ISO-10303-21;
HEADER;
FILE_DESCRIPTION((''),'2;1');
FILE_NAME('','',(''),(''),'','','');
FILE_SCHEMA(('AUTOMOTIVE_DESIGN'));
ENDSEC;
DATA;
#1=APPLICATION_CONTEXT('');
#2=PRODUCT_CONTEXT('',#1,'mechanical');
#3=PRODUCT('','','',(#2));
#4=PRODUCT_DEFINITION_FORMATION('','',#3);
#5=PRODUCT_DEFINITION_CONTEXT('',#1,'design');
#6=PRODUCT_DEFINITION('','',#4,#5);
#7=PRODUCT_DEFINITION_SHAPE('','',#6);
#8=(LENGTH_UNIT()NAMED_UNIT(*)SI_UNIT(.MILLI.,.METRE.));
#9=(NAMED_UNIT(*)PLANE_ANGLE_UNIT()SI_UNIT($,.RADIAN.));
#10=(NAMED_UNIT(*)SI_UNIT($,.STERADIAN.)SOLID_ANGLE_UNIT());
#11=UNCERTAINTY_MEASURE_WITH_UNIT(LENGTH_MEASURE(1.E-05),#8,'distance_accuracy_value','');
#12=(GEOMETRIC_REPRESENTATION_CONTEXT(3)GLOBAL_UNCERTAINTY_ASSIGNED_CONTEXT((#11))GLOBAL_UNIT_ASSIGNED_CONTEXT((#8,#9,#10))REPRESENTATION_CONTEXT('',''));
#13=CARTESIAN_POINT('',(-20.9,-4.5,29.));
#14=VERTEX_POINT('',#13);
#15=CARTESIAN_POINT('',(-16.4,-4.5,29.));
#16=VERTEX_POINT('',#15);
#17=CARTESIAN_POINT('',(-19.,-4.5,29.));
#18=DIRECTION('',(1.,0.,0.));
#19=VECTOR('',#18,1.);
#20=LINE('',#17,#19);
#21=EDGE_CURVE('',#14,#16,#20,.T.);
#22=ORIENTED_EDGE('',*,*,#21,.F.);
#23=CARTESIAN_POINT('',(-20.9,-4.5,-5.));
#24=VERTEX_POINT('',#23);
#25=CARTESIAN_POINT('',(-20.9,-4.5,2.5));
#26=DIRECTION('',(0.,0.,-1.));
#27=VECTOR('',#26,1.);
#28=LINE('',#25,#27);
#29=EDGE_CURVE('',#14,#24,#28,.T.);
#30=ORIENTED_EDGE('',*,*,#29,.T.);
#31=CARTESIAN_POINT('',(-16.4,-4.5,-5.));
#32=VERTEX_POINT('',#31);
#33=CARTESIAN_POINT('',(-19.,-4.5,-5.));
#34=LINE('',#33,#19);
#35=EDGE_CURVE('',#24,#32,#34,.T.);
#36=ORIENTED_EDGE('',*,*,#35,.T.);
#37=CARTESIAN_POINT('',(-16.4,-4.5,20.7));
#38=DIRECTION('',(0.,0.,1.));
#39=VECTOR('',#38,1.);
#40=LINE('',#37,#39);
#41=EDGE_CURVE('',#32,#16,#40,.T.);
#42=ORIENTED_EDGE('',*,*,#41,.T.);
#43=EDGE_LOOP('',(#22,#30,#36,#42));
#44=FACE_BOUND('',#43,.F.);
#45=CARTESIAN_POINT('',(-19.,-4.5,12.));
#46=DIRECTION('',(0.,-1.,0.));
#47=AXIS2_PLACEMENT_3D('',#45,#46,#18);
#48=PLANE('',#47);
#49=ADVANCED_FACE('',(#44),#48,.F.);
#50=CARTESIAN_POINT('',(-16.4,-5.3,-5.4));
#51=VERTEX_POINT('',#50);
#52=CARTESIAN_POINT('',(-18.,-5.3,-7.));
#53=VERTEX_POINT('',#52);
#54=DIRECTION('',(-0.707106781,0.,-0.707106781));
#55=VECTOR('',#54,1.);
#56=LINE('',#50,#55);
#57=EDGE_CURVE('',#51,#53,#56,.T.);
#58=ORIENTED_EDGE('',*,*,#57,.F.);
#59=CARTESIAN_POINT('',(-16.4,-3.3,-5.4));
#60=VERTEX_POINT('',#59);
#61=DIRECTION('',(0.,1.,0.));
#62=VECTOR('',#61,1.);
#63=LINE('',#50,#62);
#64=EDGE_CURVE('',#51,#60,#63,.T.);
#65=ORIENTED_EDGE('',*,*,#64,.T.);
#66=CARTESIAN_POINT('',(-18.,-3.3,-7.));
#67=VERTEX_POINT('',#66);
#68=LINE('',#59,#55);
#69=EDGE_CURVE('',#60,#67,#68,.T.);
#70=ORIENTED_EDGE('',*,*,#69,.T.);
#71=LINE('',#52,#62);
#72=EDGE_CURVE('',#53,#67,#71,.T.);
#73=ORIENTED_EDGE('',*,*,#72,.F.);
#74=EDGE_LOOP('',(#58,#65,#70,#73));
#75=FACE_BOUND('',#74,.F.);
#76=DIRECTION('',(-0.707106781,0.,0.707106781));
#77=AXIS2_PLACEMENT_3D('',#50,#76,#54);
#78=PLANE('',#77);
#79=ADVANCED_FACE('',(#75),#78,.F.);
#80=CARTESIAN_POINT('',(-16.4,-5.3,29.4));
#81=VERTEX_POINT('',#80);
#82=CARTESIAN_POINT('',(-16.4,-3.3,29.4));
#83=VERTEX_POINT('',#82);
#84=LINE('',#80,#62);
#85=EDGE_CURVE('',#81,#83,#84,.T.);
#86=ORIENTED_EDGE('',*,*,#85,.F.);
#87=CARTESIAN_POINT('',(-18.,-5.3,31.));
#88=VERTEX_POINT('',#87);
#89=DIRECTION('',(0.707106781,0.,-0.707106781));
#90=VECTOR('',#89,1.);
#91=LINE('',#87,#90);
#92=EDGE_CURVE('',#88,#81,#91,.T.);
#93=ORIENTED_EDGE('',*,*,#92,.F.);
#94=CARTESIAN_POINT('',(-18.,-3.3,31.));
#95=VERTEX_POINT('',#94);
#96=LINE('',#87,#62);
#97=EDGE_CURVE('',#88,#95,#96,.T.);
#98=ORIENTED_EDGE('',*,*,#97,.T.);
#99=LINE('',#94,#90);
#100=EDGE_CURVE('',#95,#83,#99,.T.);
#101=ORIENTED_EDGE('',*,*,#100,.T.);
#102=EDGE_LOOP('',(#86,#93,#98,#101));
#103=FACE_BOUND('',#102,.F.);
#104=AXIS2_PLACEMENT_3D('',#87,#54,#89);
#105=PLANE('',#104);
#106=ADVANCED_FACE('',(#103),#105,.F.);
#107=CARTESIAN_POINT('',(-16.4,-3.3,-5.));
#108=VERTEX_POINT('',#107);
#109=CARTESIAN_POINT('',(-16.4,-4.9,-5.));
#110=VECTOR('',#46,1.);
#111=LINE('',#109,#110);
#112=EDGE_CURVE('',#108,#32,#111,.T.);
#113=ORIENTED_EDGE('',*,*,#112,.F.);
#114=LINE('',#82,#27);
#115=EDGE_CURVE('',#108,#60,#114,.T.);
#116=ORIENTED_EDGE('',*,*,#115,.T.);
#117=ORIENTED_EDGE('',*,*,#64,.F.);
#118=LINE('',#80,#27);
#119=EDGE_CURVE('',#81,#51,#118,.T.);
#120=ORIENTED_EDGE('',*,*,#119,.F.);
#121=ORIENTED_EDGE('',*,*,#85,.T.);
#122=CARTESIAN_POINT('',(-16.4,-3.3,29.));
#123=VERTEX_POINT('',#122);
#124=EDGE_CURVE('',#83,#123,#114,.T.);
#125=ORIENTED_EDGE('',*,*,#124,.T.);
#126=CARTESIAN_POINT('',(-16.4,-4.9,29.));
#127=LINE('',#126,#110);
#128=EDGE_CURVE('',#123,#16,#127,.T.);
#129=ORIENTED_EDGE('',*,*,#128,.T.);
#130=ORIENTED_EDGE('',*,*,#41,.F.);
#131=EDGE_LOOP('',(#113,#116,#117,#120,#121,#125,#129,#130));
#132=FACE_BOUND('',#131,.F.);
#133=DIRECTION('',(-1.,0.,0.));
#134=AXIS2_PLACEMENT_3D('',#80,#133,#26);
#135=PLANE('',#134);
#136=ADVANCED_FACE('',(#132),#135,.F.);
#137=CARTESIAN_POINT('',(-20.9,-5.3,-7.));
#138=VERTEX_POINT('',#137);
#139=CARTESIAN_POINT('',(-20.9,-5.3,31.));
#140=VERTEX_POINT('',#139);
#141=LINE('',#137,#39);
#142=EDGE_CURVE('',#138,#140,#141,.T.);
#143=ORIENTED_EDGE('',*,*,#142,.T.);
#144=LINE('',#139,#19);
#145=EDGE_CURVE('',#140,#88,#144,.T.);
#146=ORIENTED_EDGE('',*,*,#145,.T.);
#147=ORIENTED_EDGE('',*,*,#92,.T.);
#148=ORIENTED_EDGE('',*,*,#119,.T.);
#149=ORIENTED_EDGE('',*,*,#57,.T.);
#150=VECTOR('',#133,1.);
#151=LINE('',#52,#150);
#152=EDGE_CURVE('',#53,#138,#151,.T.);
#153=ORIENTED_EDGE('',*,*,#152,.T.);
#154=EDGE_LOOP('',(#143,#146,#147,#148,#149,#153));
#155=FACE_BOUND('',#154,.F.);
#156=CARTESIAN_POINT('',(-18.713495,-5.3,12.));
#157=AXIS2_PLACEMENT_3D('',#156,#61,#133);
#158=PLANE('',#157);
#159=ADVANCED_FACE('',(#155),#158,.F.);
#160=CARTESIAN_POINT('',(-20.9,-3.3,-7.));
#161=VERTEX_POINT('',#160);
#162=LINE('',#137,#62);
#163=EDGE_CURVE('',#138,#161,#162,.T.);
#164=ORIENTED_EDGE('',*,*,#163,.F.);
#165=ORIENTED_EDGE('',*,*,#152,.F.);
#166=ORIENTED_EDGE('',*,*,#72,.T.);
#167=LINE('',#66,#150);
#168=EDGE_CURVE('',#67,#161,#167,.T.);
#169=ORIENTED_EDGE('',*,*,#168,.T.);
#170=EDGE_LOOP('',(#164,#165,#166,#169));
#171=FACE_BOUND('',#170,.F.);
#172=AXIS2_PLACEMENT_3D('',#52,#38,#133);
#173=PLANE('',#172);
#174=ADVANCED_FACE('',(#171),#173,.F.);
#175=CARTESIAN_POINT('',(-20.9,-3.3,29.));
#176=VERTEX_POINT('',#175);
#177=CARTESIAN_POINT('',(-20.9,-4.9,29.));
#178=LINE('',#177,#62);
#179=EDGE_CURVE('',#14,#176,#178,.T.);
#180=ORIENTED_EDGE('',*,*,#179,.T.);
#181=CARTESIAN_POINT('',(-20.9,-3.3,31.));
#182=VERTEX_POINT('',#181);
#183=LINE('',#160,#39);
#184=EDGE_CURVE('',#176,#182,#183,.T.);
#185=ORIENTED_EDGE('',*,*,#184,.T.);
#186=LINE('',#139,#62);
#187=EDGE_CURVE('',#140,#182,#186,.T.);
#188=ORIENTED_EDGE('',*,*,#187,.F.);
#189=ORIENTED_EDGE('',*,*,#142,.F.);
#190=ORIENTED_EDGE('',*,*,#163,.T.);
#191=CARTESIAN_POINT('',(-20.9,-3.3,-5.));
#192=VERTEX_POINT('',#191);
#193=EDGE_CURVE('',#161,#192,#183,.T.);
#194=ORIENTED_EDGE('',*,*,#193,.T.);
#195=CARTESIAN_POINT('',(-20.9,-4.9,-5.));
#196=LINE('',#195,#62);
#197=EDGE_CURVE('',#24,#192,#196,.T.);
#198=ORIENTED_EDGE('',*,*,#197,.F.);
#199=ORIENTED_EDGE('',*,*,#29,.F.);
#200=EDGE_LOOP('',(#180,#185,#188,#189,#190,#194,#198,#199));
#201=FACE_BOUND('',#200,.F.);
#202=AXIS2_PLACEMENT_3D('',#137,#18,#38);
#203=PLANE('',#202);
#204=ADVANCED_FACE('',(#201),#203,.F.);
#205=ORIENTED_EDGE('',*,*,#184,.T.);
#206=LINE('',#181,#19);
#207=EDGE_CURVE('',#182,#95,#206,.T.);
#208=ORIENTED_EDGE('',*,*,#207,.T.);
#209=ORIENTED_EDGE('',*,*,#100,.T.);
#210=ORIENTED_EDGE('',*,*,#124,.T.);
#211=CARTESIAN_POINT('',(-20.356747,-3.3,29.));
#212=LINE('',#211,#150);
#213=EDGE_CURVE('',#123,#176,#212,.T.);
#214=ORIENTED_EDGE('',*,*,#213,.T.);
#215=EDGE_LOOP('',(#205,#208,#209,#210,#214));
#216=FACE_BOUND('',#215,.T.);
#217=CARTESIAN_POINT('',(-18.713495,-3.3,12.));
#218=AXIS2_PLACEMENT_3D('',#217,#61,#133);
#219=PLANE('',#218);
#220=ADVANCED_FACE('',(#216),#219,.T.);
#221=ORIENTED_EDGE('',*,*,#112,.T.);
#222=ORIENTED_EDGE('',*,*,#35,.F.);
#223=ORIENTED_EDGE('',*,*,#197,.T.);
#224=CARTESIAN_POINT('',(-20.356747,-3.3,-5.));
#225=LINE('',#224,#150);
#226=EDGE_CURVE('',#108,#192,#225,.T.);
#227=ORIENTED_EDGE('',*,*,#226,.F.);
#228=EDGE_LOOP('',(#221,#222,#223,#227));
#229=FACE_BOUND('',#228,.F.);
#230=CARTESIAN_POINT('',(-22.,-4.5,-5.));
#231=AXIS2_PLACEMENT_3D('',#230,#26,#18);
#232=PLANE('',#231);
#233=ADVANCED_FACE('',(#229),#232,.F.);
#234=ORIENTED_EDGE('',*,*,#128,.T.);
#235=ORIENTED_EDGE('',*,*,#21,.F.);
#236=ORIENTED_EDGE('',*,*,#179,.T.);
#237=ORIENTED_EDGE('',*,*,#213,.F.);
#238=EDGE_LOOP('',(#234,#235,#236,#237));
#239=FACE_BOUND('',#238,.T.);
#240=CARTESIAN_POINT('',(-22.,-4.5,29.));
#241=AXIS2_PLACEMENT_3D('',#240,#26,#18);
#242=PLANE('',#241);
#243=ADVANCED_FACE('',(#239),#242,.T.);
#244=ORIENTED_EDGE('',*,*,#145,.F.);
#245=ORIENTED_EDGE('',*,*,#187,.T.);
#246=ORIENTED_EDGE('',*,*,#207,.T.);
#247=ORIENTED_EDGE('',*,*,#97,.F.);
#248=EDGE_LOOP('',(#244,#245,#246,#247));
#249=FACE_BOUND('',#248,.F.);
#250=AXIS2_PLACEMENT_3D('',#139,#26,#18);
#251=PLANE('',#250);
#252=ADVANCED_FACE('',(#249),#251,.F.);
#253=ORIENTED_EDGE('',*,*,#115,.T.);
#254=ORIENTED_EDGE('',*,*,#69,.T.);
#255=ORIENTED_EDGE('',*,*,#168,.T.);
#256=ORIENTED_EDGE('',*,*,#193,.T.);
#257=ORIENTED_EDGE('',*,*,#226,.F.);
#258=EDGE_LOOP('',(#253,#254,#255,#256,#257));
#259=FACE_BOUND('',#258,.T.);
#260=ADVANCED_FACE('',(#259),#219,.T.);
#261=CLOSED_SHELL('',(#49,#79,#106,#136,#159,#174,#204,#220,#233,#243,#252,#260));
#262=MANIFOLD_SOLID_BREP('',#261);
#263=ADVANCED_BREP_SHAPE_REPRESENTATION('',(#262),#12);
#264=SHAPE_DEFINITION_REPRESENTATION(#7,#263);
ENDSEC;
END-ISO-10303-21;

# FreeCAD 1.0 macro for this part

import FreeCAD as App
import Part
import Sketcher
from FreeCAD import Vector
Q = App.Units.Quantity

doc = App.newDocument("Part")
body = doc.addObject("PartDesign::Body", "Body")

sketch1 = body.newObject("Sketcher::SketchObject", "Sketch")
sketch1.AttachmentSupport = (doc.getObject("XZ_Plane"), [""])
sketch1.MapMode = "FlatFace"
sketch1.AttachmentOffset = App.Placement(Vector(0, 0, 4.5), App.Rotation())
sketch1.addGeometry([
    Part.LineSegment(Vector(-62, 29, 0), Vector(-62, -5, 0)),
    Part.LineSegment(Vector(-62, -5, 0), Vector(-56, -5, 0)),
    Part.LineSegment(Vector(-56, -5, 0), Vector(-56, 29, 0)),
    Part.LineSegment(Vector(-56, 29, 0), Vector(-62, 29, 0)),
], False)
sketch1.addConstraint([
    Sketcher.Constraint("Coincident", 0, 2, 1, 1),
    Sketcher.Constraint("Coincident", 1, 2, 2, 1),
    Sketcher.Constraint("Coincident", 2, 2, 3, 1),
    Sketcher.Constraint("Coincident", 3, 2, 0, 1),
    Sketcher.Constraint("Vertical", 0),
    Sketcher.Constraint("Horizontal", 1),
    Sketcher.Constraint("Vertical", 2),
    Sketcher.Constraint("Horizontal", 3),
    Sketcher.Constraint("DistanceX", 1, 1, 1, 2, Q("6 mm")),
    Sketcher.Constraint("DistanceY", 0, 2, 0, 1, Q("34 mm")),
    Sketcher.Constraint("DistanceX", 0, 2, -1, 1, Q("62 mm")),
    Sketcher.Constraint("DistanceY", 0, 2, -1, 1, Q("5 mm")),
])
pad1 = body.newObject("PartDesign::Pad", "Pad")
pad1.Profile = sketch1
pad1.Length = 2
pad1.Reversed = True
body2 = doc.addObject("PartDesign::Body", "Body001")

sketch2 = body2.newObject("Sketcher::SketchObject", "Sketch001")
sketch2.AttachmentSupport = (doc.getObject("XZ_Plane001"), [""])
sketch2.MapMode = "FlatFace"
sketch2.AttachmentOffset = App.Placement(Vector(0, 0, 5.3), App.Rotation())
sketch2.addGeometry([
    Part.LineSegment(Vector(-56.4, 29.4, 0), Vector(-58, 31, 0)),
    Part.LineSegment(Vector(-58, 31, 0), Vector(-60.9, 31, 0)),
    Part.LineSegment(Vector(-60.9, 31, 0), Vector(-60.9, -7, 0)),
    Part.LineSegment(Vector(-60.9, -7, 0), Vector(-58, -7, 0)),
    Part.LineSegment(Vector(-58, -7, 0), Vector(-56.4, -5.4, 0)),
    Part.LineSegment(Vector(-56.4, -5.4, 0), Vector(-56.4, 29.4, 0)),
], False)
sketch2.addConstraint([
    Sketcher.Constraint("Coincident", 0, 2, 1, 1),
    Sketcher.Constraint("Coincident", 1, 2, 2, 1),
    Sketcher.Constraint("Coincident", 2, 2, 3, 1),
    Sketcher.Constraint("Coincident", 3, 2, 4, 1),
    Sketcher.Constraint("Coincident", 4, 2, 5, 1),
    Sketcher.Constraint("Coincident", 5, 2, 0, 1),
    Sketcher.Constraint("Horizontal", 1),
    Sketcher.Constraint("Vertical", 2),
    Sketcher.Constraint("Horizontal", 3),
    Sketcher.Constraint("Vertical", 5),
    Sketcher.Constraint("Perpendicular", 0, 4),
    Sketcher.Constraint("Vertical", 0, 2, 3, 2),
    Sketcher.Constraint("Equal", 0, 4),
    Sketcher.Constraint("DistanceY", 2, 2, 2, 1, Q("38 mm")),
    Sketcher.Constraint("DistanceX", 1, 2, 1, 1, Q("2.9 mm")),
    Sketcher.Constraint("DistanceY", 5, 1, 5, 2, Q("34.8 mm")),
    Sketcher.Constraint("DistanceX", 0, 2, -1, 1, Q("58 mm")),
    Sketcher.Constraint("DistanceY", -1, 1, 0, 2, Q("31 mm")),
])
pad2 = body2.newObject("PartDesign::Pad", "Pad001")
pad2.Profile = sketch2
pad2.Length = 2
pad2.Reversed = True
doc.recompute()

boolean = body2.newObject("PartDesign::Boolean", "Boolean")
boolean.Type = "Cut"
boolean.addObjects([body])
body3 = doc.addObject("PartDesign::Body", "Body002")
doc.recompute()

body2.Placement = App.Placement(Vector(40, 0, 0), App.Rotation(Vector(0, 0, 1), 0))
boolean2 = body3.newObject("PartDesign::Boolean", "Boolean001")
boolean2.Type = "Fuse"
boolean2.addObjects([body2])

doc.recompute()
